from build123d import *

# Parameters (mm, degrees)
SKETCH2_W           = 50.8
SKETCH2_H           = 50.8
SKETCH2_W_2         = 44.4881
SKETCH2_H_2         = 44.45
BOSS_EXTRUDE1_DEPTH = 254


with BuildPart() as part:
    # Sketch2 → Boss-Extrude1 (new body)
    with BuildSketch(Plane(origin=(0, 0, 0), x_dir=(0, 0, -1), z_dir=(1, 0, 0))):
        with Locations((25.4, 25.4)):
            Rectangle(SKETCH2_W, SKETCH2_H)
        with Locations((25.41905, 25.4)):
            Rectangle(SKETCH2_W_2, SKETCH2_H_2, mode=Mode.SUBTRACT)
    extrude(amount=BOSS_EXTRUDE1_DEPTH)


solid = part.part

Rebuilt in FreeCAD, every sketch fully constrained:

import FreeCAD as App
import Part
import Sketcher

V = App.Vector
Q = App.Units.Quantity

doc = App.newDocument("Part")
body = doc.addObject("PartDesign::Body", "Body")

sketch1 = doc.addObject("Sketcher::SketchObject", "Sketch")
body.addObject(sketch1)
sketch1.AttachmentSupport = (doc.YZ_Plane, [""])
sketch1.MapMode = "FlatFace"
sketch1.addGeometry([
    Part.LineSegment(V(51, 0, 0), V(0, 0, 0)),
    Part.LineSegment(V(0, 0, 0), V(0, -51, 0)),
    Part.LineSegment(V(0, -51, 0), V(51, -51, 0)),
    Part.LineSegment(V(51, -51, 0), V(51, 0, 0)),
    Part.LineSegment(V(3, -48, 0), V(3, -3, 0)),
    Part.LineSegment(V(3, -3, 0), V(48, -3, 0)),
    Part.LineSegment(V(48, -3, 0), V(48, -48, 0)),
    Part.LineSegment(V(48, -48, 0), V(3, -48, 0)),
], False)
sketch1.addConstraint([
    Sketcher.Constraint("Coincident", 0, 2, 1, 1),
    Sketcher.Constraint("Coincident", 1, 2, 2, 1),
    Sketcher.Constraint("Coincident", 2, 2, 3, 1),
    Sketcher.Constraint("Coincident", 3, 2, 0, 1),
    Sketcher.Constraint("Coincident", 4, 2, 5, 1),
    Sketcher.Constraint("Coincident", 5, 2, 6, 1),
    Sketcher.Constraint("Coincident", 6, 2, 7, 1),
    Sketcher.Constraint("Coincident", 7, 2, 4, 1),
    Sketcher.Constraint("Horizontal", 0),
    Sketcher.Constraint("Vertical", 1),
    Sketcher.Constraint("Horizontal", 2),
    Sketcher.Constraint("Vertical", 3),
    Sketcher.Constraint("Vertical", 4),
    Sketcher.Constraint("Horizontal", 5),
    Sketcher.Constraint("Vertical", 6),
    Sketcher.Constraint("Horizontal", 7),
    Sketcher.Constraint("Coincident", 0, 2, -1, 1),
    Sketcher.Constraint("Equal", 2, 1),
    Sketcher.Constraint("DistanceX", 0, 2, 0, 1, Q("2 in")),
    Sketcher.Constraint("DistanceX", 5, 1, 5, 2, Q("1.75 in")),
    Sketcher.Constraint("DistanceY", 4, 1, 4, 2, Q("1.7515 in")),
    Sketcher.Constraint("DistanceX", -1, 1, 4, 2, Q("0.125 in")),
    Sketcher.Constraint("DistanceY", 4, 2, -1, 1, Q("0.125 in")),
])
pad1 = doc.addObject("PartDesign::Pad", "Pad")
body.addObject(pad1)
pad1.Profile = sketch1
pad1.Length = Q("10 in")

doc.recompute()
